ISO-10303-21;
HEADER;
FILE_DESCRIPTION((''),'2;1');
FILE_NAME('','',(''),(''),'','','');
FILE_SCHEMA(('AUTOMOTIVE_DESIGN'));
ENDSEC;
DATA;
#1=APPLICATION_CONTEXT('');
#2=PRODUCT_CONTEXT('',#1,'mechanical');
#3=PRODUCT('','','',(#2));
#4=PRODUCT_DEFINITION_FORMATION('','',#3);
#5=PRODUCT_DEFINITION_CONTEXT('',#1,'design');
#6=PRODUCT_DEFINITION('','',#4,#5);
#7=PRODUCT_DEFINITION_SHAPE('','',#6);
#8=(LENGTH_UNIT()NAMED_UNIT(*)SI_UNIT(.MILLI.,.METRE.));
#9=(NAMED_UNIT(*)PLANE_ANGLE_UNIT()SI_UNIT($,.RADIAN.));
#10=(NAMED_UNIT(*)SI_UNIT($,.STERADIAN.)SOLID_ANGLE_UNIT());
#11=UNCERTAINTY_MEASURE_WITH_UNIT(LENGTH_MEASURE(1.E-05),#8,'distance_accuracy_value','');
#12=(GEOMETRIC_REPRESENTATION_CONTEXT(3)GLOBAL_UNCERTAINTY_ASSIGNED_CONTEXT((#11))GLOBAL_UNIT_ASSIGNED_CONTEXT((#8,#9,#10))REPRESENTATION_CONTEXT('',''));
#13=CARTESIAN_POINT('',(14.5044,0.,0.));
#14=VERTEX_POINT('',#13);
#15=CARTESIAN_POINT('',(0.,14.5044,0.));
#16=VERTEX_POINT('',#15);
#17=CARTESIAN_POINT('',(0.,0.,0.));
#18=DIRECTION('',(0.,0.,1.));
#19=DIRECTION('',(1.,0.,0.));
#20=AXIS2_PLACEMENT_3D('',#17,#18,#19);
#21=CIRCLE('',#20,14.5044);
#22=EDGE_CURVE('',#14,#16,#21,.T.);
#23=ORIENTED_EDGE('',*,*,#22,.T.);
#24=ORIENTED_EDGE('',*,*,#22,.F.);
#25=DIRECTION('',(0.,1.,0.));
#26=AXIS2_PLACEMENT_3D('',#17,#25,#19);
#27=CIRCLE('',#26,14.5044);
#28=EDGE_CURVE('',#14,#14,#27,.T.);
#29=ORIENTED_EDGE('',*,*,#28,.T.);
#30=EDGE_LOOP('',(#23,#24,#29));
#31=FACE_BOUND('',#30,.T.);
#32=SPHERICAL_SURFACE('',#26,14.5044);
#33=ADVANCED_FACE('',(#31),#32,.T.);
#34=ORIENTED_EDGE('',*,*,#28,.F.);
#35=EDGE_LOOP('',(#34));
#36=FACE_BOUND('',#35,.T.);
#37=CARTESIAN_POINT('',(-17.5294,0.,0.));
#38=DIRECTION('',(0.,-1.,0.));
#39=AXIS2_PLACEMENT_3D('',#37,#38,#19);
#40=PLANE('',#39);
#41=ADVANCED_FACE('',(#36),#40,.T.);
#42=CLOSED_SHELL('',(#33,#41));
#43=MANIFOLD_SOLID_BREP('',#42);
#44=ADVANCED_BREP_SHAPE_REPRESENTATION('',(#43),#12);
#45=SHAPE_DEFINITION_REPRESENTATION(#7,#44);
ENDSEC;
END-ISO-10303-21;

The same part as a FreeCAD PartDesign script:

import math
import FreeCAD as App
import Part
import Sketcher
from FreeCAD import Vector
Q = App.Units.Quantity


def add_polygon(sketch, points):
    """Adds a closed chain of lines whose ends are joined by coincident constraints."""
    first, n = sketch.GeometryCount, len(points)
    for a, b in zip(points, points[1:] + points[:1]):
        sketch.addGeometry(Part.LineSegment(App.Vector(*a, 0), App.Vector(*b, 0)), False)
    for i in range(n):
        sketch.addConstraint(Sketcher.Constraint("Coincident", first + i, 2, first + (i + 1) % n, 1))

doc = App.newDocument("Part")
body = doc.addObject("PartDesign::Body", "Body")

# Sketch on XY plane
sketch1 = body.newObject("Sketcher::SketchObject", "Sketch")
sketch1.AttachmentSupport = (doc.getObject("XY_Plane"), [""])
sketch1.MapMode = "FlatFace"
sketch1.addGeometry([
    Part.ArcOfCircle(Part.Circle(Vector(0, 0, 0), Vector(0, 0, 1), 14.5044), math.radians(-90), math.radians(90)),
    Part.LineSegment(Vector(0, 14.5044, 0), Vector(0, -14.5044, 0)),
], False)
sketch1.addConstraint([
    Sketcher.Constraint("Coincident", 0, 1, 1, 2),
    Sketcher.Constraint("Coincident", 1, 1, 0, 2),
    Sketcher.Constraint("Vertical", 1),
    Sketcher.Constraint("Coincident", 0, 3, -1, 1),
    Sketcher.Constraint("PointOnObject", 0, 1, -2),
    Sketcher.Constraint("Radius", 0, Q("14.5044 mm")),
])
revolution = body.newObject("PartDesign::Revolution", "Revolution")
revolution.Profile = sketch1
revolution.ReferenceAxis = (sketch1, ["V_Axis"])
revolution.Angle = 360

# Sketch on XY plane
sketch2 = body.newObject("Sketcher::SketchObject", "Sketch001")
sketch2.AttachmentSupport = (doc.getObject("XY_Plane"), [""])
sketch2.MapMode = "FlatFace"
add_polygon(sketch2, [(21.1361, 0), (-19.512, 0), (-16.6762, -5.2162), (-11.3631, -14.9892), (4.7314, -16.7344), (16.0945, -13.7482)])  # lines 0-5
sketch2.addConstraint([
    Sketcher.Constraint("Horizontal", 0),
    Sketcher.Constraint("PointOnObject", 0, 2, -1),
    Sketcher.Constraint("Parallel", 1, 2),
    Sketcher.Constraint("Angle", 1, Q("-61.4692 deg")),
    Sketcher.Constraint("DistanceX", 0, 2, 0, 1, Q("40.648 mm")),
    Sketcher.Constraint("Distance", 4, Q("11.749 mm")),
    Sketcher.Constraint("DistanceX", 0, 2, -1, 1, Q("19.512 mm")),
    Sketcher.Constraint("DistanceX", 2, 2, -1, 1, Q("11.363 mm")),
    Sketcher.Constraint("DistanceX", 1, 2, 2, 2, Q("5.313 mm")),
    Sketcher.Constraint("DistanceX", 3, 2, 4, 2, Q("11.363 mm")),
    Sketcher.Constraint("DistanceY", 2, 2, 4, 2, Q("1.241 mm")),
    Sketcher.Constraint("Distance", 3, Q("16.1888 mm")),
])
pocket1 = body.newObject("PartDesign::Pocket", "Pocket")
pocket1.Profile = sketch2
pocket1.Length = 30.5
pocket1.Midplane = True

doc.recompute()
